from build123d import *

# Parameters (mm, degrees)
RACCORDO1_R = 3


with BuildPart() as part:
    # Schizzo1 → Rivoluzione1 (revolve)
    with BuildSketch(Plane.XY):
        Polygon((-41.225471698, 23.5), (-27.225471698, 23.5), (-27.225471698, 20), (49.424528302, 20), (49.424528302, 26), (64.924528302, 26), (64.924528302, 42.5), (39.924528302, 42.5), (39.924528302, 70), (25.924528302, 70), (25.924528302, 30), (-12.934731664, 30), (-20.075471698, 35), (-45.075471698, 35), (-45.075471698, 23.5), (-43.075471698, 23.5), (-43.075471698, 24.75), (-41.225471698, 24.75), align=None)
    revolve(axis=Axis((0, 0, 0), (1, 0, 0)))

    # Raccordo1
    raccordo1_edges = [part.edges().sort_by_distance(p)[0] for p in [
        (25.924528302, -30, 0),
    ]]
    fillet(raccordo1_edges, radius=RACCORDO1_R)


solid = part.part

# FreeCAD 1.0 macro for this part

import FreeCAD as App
import Part
import Sketcher
Q = App.Units.Quantity


def edges_at(feature, points):
    """Names of the edges that pass closest to the given points."""
    edges = feature.Shape.Edges
    near = lambda p: min(range(len(edges)), key=lambda i: edges[i].distToShape(Part.Vertex(*p))[0])
    return sorted({f"Edge{near(p) + 1}" for p in points})

doc = App.newDocument("Part")
body = doc.addObject("PartDesign::Body", "Body")

# Sketch on XY plane
sketch1 = body.newObject("Sketcher::SketchObject", "Sketch")
sketch1.AttachmentSupport = (doc.getObject("XY_Plane"), [""])
sketch1.MapMode = "FlatFace"
sketch1.addGeometry([
    Part.LineSegment(App.Vector(-41.2, 23.5, 0), App.Vector(-27.2, 23.5, 0)),  # 0
    Part.LineSegment(App.Vector(-27.2, 23.5, 0), App.Vector(-27.2, 20, 0)),  # 1
    Part.LineSegment(App.Vector(-27.2, 20, 0), App.Vector(49.4, 20, 0)),  # 2
    Part.LineSegment(App.Vector(49.4, 20, 0), App.Vector(49.4, 26, 0)),  # 3
    Part.LineSegment(App.Vector(49.4, 26, 0), App.Vector(64.9, 26, 0)),  # 4
    Part.LineSegment(App.Vector(64.9, 26, 0), App.Vector(64.9, 42.5, 0)),  # 5
    Part.LineSegment(App.Vector(64.9, 42.5, 0), App.Vector(39.9, 42.5, 0)),  # 6
    Part.LineSegment(App.Vector(39.9, 42.5, 0), App.Vector(39.9, 70, 0)),  # 7
    Part.LineSegment(App.Vector(39.9, 70, 0), App.Vector(25.9, 70, 0)),  # 8
    Part.LineSegment(App.Vector(25.9, 70, 0), App.Vector(25.9, 30, 0)),  # 9
    Part.LineSegment(App.Vector(25.9, 30, 0), App.Vector(-12.9, 30, 0)),  # 10
    Part.LineSegment(App.Vector(-12.9, 30, 0), App.Vector(-20.1, 35, 0)),  # 11
    Part.LineSegment(App.Vector(-20.1, 35, 0), App.Vector(-45.1, 35, 0)),  # 12
    Part.LineSegment(App.Vector(-45.1, 35, 0), App.Vector(-45.1, 23.5, 0)),  # 13
    Part.LineSegment(App.Vector(-45.1, 23.5, 0), App.Vector(-43.1, 23.5, 0)),  # 14
    Part.LineSegment(App.Vector(-43.1, 23.5, 0), App.Vector(-43.1, 24.8, 0)),  # 15
    Part.LineSegment(App.Vector(-43.1, 24.8, 0), App.Vector(-41.2, 24.8, 0)),  # 16
    Part.LineSegment(App.Vector(-41.2, 24.8, 0), App.Vector(-41.2, 23.5, 0)),  # 17
], False)
sketch1.addConstraint([
    Sketcher.Constraint("Coincident", 0, 2, 1, 1),
    Sketcher.Constraint("Coincident", 1, 2, 2, 1),
    Sketcher.Constraint("Coincident", 2, 2, 3, 1),
    Sketcher.Constraint("Coincident", 3, 2, 4, 1),
    Sketcher.Constraint("Coincident", 4, 2, 5, 1),
    Sketcher.Constraint("Coincident", 5, 2, 6, 1),
    Sketcher.Constraint("Coincident", 6, 2, 7, 1),
    Sketcher.Constraint("Coincident", 7, 2, 8, 1),
    Sketcher.Constraint("Coincident", 8, 2, 9, 1),
    Sketcher.Constraint("Coincident", 9, 2, 10, 1),
    Sketcher.Constraint("Coincident", 10, 2, 11, 1),
    Sketcher.Constraint("Coincident", 11, 2, 12, 1),
    Sketcher.Constraint("Coincident", 12, 2, 13, 1),
    Sketcher.Constraint("Coincident", 13, 2, 14, 1),
    Sketcher.Constraint("Coincident", 14, 2, 15, 1),
    Sketcher.Constraint("Coincident", 15, 2, 16, 1),
    Sketcher.Constraint("Coincident", 16, 2, 17, 1),
    Sketcher.Constraint("Coincident", 17, 2, 0, 1),
    Sketcher.Constraint("Horizontal", 0),
    Sketcher.Constraint("Vertical", 1),
    Sketcher.Constraint("Horizontal", 2),
    Sketcher.Constraint("Vertical", 3),
    Sketcher.Constraint("Horizontal", 4),
    Sketcher.Constraint("Vertical", 5),
    Sketcher.Constraint("Horizontal", 6),
    Sketcher.Constraint("Vertical", 7),
    Sketcher.Constraint("Horizontal", 8),
    Sketcher.Constraint("Vertical", 9),
    Sketcher.Constraint("Horizontal", 10),
    Sketcher.Constraint("Horizontal", 12),
    Sketcher.Constraint("Vertical", 13),
    Sketcher.Constraint("Horizontal", 14),
    Sketcher.Constraint("Vertical", 15),
    Sketcher.Constraint("Horizontal", 16),
    Sketcher.Constraint("Vertical", 17),
    Sketcher.Constraint("Horizontal", 0, 2, 13, 2),
    Sketcher.Constraint("Equal", 0, 8),
    Sketcher.Constraint("Equal", 6, 12),
    Sketcher.Constraint("DistanceX", 0, 1, 0, 2, 14.0),
    Sketcher.Constraint("DistanceX", 6, 2, 6, 1, 25.0),
    Sketcher.Constraint("DistanceX", 14, 1, 14, 2, 2.0),
    Sketcher.Constraint("DistanceY", 3, 1, 3, 2, 6.0),
    Sketcher.Constraint("DistanceY", 9, 2, 9, 1, 40.0),
    Sketcher.Constraint("Angle", 11, Q("145 deg")),
    Sketcher.Constraint("DistanceX", 4, 1, 4, 2, 15.5),
    Sketcher.Constraint("DistanceY", 1, 2, 1, 1, 3.5),
    Sketcher.Constraint("DistanceY", 5, 1, 5, 2, 16.5),
    Sketcher.Constraint("DistanceY", 7, 1, 7, 2, 27.5),
    Sketcher.Constraint("DistanceY", 13, 2, 13, 1, 11.5),
    Sketcher.Constraint("DistanceY", -1, 1, 1, 2, 20.0),
    Sketcher.Constraint("DistanceX", 11, 2, 9, 2, 46.0),
    Sketcher.Constraint("DistanceX", 2, 1, 2, 2, 76.65),
    Sketcher.Constraint("DistanceY", 15, 1, 15, 2, 1.25),
    Sketcher.Constraint("DistanceX", 0, 2, -1, 1, 27.225472),
])
revolution = body.newObject("PartDesign::Revolution", "Revolution")
revolution.Profile = sketch1
revolution.ReferenceAxis = (sketch1, ["H_Axis"])
revolution.Angle = 360
doc.recompute()

fillet = body.newObject("PartDesign::Fillet", "Fillet")
fillet.Base = (revolution, edges_at(revolution, [(25.925, -30, 0)]))
fillet.Radius = 3

doc.recompute()
